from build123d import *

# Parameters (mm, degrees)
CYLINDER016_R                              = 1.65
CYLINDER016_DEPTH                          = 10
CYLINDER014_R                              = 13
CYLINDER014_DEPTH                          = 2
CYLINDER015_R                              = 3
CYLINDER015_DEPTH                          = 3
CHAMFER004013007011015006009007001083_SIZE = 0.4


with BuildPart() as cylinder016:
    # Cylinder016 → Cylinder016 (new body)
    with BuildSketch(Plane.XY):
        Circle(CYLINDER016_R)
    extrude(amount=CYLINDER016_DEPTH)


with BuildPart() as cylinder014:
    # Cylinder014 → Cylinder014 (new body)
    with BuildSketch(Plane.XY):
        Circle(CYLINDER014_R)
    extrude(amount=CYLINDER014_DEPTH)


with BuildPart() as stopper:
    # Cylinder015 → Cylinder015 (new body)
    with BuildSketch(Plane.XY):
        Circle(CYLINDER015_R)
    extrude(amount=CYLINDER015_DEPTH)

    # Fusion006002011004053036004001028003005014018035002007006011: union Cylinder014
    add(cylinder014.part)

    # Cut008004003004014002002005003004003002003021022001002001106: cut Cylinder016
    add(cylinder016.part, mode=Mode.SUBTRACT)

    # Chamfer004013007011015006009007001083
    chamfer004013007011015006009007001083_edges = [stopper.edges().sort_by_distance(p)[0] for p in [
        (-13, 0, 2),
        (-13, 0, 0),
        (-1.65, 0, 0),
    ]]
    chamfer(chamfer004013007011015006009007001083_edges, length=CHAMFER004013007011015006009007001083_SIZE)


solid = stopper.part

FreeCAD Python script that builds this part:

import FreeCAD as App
import Part
import Sketcher
from FreeCAD import Vector
Q = App.Units.Quantity


def edges_at(feature, points):
    """Names of the edges that pass closest to the given points."""
    edges = feature.Shape.Edges
    near = lambda p: min(range(len(edges)), key=lambda i: edges[i].distToShape(Part.Vertex(*p))[0])
    return sorted({f"Edge{near(p) + 1}" for p in points})

doc = App.newDocument("Part")
body = doc.addObject("PartDesign::Body", "Body")

sketch1 = body.newObject("Sketcher::SketchObject", "Sketch")
sketch1.AttachmentSupport = (doc.getObject("XY_Plane"), [""])
sketch1.MapMode = "FlatFace"
sketch1.addGeometry(Part.Circle(Vector(0, 0, 0), Vector(0, 0, 1), 1.6), False)
sketch1.addConstraint([
    Sketcher.Constraint("Coincident", 0, 3, -1, 1),
    Sketcher.Constraint("Diameter", 0, Q("3.3 mm")),
])
pad1 = body.newObject("PartDesign::Pad", "Pad")
pad1.Profile = sketch1
pad1.Length = 10
body2 = doc.addObject("PartDesign::Body", "Body001")

sketch2 = body2.newObject("Sketcher::SketchObject", "Sketch001")
sketch2.AttachmentSupport = (doc.getObject("XY_Plane001"), [""])
sketch2.MapMode = "FlatFace"
sketch2.addGeometry(Part.Circle(Vector(0, 0, 0), Vector(0, 0, 1), 13), False)
sketch2.addConstraint([
    Sketcher.Constraint("Coincident", 0, 3, -1, 1),
    Sketcher.Constraint("Diameter", 0, Q("26 mm")),
])
pad2 = body2.newObject("PartDesign::Pad", "Pad001")
pad2.Profile = sketch2
pad2.Length = 2
body3 = doc.addObject("PartDesign::Body", "Body002")

sketch3 = body3.newObject("Sketcher::SketchObject", "Sketch002")
sketch3.AttachmentSupport = (doc.getObject("XY_Plane002"), [""])
sketch3.MapMode = "FlatFace"
sketch3.addGeometry(Part.Circle(Vector(0, 0, 0), Vector(0, 0, 1), 3), False)
sketch3.addConstraint([
    Sketcher.Constraint("Coincident", 0, 3, -1, 1),
    Sketcher.Constraint("Diameter", 0, Q("6 mm")),
])
pad3 = body3.newObject("PartDesign::Pad", "Pad002")
pad3.Profile = sketch3
pad3.Length = 3
doc.recompute()

boolean = body3.newObject("PartDesign::Boolean", "Boolean")
boolean.Type = "Fuse"
boolean.addObjects([body2])
doc.recompute()

boolean2 = body3.newObject("PartDesign::Boolean", "Boolean001")
boolean2.Type = "Cut"
boolean2.addObjects([body])
doc.recompute()

chamfer = body3.newObject("PartDesign::Chamfer", "Chamfer")
chamfer.Base = (boolean2, edges_at(boolean2, [(-13, 0, 2), (-13, 0, 0), (-1.65, 0, 0)]))
chamfer.Size = 0.4

doc.recompute()
